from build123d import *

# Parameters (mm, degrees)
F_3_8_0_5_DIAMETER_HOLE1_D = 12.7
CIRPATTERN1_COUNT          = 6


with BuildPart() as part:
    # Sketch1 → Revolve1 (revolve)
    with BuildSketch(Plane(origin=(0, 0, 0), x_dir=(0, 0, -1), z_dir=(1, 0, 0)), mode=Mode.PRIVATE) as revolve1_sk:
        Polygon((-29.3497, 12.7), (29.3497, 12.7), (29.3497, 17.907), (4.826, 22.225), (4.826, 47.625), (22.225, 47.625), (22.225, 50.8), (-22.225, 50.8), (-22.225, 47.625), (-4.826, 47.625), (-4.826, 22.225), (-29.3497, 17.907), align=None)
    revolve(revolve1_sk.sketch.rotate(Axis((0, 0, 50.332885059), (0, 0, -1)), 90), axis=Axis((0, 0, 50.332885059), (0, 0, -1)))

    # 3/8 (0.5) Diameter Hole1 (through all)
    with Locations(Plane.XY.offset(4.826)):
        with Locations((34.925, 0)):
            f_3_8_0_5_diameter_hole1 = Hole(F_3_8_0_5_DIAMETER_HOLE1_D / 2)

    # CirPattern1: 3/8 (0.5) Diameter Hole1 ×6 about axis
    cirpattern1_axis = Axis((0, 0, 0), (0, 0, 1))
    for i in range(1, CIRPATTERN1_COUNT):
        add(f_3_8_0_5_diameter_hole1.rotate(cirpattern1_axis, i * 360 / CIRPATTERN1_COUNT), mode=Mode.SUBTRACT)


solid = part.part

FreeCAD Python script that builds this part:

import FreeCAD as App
import Part
import Sketcher

V = App.Vector
Q = App.Units.Quantity


def add_polygon(sketch, points):
    """Adds a closed chain of lines whose ends are joined by coincident constraints."""
    first, n = sketch.GeometryCount, len(points)
    for a, b in zip(points, points[1:] + points[:1]):
        sketch.addGeometry(Part.LineSegment(App.Vector(*a, 0), App.Vector(*b, 0)), False)
    for i in range(n):
        sketch.addConstraint(Sketcher.Constraint("Coincident", first + i, 2, first + (i + 1) % n, 1))

doc = App.newDocument("Part")
params = doc.addObject("Spreadsheet::Sheet", "Params")
for row, (alias, value) in enumerate([
    ("sketch1_width", "1 in"),
    ("sketch1_height", "1.75 in"),
    ("sketch1_width2", "0.205 in"),
    ("sketch1_width3", "0.125 in"),
    ("sketch1_height2", "2.311 in"),
    ("revolution_angle", "360 deg"),
    ("sketch2_diameter", "0.5 in"),
    ("hole_diameter", "0.5 in"),
], start=1):
    params.set(f"A{row}", alias)
    params.set(f"B{row}", "=" + value)
    params.setAlias(f"B{row}", alias)

body = doc.addObject("PartDesign::Body", "Body")

# Sketch on YZ plane
sketch1 = body.newObject("Sketcher::SketchObject", "Sketch")
sketch1.AttachmentSupport = (doc.getObject("YZ_Plane"), [""])
sketch1.MapMode = "FlatFace"
add_polygon(sketch1, [(12.7, 29.3497), (12.7, -29.3497), (17.907, -29.3497), (22.225, -4.826), (47.625, -4.826), (47.625, -22.225), (50.8, -22.225), (50.8, 22.225), (47.625, 22.225), (47.625, 4.826), (22.225, 4.826), (17.907, 29.3497)])  # lines 0-11
sketch1.addConstraint([
    Sketcher.Constraint("Vertical", 0),
    Sketcher.Constraint("Horizontal", 1),
    Sketcher.Constraint("Horizontal", 3),
    Sketcher.Constraint("Vertical", 4),
    Sketcher.Constraint("Horizontal", 5),
    Sketcher.Constraint("Vertical", 6),
    Sketcher.Constraint("Horizontal", 7),
    Sketcher.Constraint("Vertical", 8),
    Sketcher.Constraint("Horizontal", 9),
    Sketcher.Constraint("Horizontal", 11),
    Sketcher.Constraint("Symmetric", 4, 2, 7, 2, -1),
    Sketcher.Constraint("Symmetric", 2, 2, 9, 2, -1),
    Sketcher.Constraint("Symmetric", 1, 2, 10, 2, -1),
    Sketcher.Constraint("DistanceX", 3, 1, 3, 2, Q("1 in")),
    Sketcher.Constraint("DistanceX", -1, 1, 5, 2, Q("2 in")),
    Sketcher.Constraint("DistanceY", 6, 1, 6, 2, Q("1.75 in")),
    Sketcher.Constraint("DistanceX", -1, 1, 0, 2, Q("0.5 in")),
    Sketcher.Constraint("DistanceX", 1, 1, 1, 2, Q("0.205 in")),
    Sketcher.Constraint("DistanceX", 5, 1, 5, 2, Q("0.125 in")),
    Sketcher.Constraint("DistanceY", 0, 2, 0, 1, Q("2.311 in")),
    Sketcher.Constraint("DistanceY", 4, 2, 4, 1, Q("0.685 in")),
])
sketch1.setExpression("Constraints[25]", "Params.sketch1_width")
sketch1.setExpression("Constraints[27]", "Params.sketch1_height")
sketch1.setExpression("Constraints[29]", "Params.sketch1_width2")
sketch1.setExpression("Constraints[30]", "Params.sketch1_width3")
sketch1.setExpression("Constraints[31]", "Params.sketch1_height2")
revolution = body.newObject("PartDesign::Revolution", "Revolution")
revolution.Profile = sketch1
revolution.ReferenceAxis = (sketch1, ["V_Axis"])
revolution.setExpression("Angle", "Params.revolution_angle")

# Sketch on XY plane
sketch2 = body.newObject("Sketcher::SketchObject", "Sketch001")
sketch2.AttachmentSupport = (doc.getObject("XY_Plane"), [""])
sketch2.MapMode = "FlatFace"
sketch2.AttachmentOffset = App.Placement(V(0, 0, 0.19 * 25.4), App.Rotation())
sketch2.addGeometry(Part.Circle(V(34.925, 0, 0), V(0, 0, 1), 6.35), False)
sketch2.addConstraint([
    Sketcher.Constraint("PointOnObject", 0, 3, -1),
    Sketcher.Constraint("Diameter", 0, Q("0.5 in")),
    Sketcher.Constraint("DistanceX", -1, 1, 0, 3, Q("1.375 in")),
])
sketch2.setExpression("Constraints[1]", "Params.sketch2_diameter")
doc.recompute()
hole = body.newObject("PartDesign::Hole", "Hole")
hole.Profile = sketch2
hole.ThreadType = "None"
hole.setExpression("Diameter", "Params.hole_diameter")
hole.DepthType = "ThroughAll"
doc.recompute()

polarpattern = body.newObject("PartDesign::PolarPattern", "PolarPattern")
polarpattern.Originals = [hole]
polarpattern.Axis = (doc.getObject("Z_Axis"), [""])
polarpattern.Angle = 360
polarpattern.Occurrences = 6
body.Tip = polarpattern

doc.recompute()
